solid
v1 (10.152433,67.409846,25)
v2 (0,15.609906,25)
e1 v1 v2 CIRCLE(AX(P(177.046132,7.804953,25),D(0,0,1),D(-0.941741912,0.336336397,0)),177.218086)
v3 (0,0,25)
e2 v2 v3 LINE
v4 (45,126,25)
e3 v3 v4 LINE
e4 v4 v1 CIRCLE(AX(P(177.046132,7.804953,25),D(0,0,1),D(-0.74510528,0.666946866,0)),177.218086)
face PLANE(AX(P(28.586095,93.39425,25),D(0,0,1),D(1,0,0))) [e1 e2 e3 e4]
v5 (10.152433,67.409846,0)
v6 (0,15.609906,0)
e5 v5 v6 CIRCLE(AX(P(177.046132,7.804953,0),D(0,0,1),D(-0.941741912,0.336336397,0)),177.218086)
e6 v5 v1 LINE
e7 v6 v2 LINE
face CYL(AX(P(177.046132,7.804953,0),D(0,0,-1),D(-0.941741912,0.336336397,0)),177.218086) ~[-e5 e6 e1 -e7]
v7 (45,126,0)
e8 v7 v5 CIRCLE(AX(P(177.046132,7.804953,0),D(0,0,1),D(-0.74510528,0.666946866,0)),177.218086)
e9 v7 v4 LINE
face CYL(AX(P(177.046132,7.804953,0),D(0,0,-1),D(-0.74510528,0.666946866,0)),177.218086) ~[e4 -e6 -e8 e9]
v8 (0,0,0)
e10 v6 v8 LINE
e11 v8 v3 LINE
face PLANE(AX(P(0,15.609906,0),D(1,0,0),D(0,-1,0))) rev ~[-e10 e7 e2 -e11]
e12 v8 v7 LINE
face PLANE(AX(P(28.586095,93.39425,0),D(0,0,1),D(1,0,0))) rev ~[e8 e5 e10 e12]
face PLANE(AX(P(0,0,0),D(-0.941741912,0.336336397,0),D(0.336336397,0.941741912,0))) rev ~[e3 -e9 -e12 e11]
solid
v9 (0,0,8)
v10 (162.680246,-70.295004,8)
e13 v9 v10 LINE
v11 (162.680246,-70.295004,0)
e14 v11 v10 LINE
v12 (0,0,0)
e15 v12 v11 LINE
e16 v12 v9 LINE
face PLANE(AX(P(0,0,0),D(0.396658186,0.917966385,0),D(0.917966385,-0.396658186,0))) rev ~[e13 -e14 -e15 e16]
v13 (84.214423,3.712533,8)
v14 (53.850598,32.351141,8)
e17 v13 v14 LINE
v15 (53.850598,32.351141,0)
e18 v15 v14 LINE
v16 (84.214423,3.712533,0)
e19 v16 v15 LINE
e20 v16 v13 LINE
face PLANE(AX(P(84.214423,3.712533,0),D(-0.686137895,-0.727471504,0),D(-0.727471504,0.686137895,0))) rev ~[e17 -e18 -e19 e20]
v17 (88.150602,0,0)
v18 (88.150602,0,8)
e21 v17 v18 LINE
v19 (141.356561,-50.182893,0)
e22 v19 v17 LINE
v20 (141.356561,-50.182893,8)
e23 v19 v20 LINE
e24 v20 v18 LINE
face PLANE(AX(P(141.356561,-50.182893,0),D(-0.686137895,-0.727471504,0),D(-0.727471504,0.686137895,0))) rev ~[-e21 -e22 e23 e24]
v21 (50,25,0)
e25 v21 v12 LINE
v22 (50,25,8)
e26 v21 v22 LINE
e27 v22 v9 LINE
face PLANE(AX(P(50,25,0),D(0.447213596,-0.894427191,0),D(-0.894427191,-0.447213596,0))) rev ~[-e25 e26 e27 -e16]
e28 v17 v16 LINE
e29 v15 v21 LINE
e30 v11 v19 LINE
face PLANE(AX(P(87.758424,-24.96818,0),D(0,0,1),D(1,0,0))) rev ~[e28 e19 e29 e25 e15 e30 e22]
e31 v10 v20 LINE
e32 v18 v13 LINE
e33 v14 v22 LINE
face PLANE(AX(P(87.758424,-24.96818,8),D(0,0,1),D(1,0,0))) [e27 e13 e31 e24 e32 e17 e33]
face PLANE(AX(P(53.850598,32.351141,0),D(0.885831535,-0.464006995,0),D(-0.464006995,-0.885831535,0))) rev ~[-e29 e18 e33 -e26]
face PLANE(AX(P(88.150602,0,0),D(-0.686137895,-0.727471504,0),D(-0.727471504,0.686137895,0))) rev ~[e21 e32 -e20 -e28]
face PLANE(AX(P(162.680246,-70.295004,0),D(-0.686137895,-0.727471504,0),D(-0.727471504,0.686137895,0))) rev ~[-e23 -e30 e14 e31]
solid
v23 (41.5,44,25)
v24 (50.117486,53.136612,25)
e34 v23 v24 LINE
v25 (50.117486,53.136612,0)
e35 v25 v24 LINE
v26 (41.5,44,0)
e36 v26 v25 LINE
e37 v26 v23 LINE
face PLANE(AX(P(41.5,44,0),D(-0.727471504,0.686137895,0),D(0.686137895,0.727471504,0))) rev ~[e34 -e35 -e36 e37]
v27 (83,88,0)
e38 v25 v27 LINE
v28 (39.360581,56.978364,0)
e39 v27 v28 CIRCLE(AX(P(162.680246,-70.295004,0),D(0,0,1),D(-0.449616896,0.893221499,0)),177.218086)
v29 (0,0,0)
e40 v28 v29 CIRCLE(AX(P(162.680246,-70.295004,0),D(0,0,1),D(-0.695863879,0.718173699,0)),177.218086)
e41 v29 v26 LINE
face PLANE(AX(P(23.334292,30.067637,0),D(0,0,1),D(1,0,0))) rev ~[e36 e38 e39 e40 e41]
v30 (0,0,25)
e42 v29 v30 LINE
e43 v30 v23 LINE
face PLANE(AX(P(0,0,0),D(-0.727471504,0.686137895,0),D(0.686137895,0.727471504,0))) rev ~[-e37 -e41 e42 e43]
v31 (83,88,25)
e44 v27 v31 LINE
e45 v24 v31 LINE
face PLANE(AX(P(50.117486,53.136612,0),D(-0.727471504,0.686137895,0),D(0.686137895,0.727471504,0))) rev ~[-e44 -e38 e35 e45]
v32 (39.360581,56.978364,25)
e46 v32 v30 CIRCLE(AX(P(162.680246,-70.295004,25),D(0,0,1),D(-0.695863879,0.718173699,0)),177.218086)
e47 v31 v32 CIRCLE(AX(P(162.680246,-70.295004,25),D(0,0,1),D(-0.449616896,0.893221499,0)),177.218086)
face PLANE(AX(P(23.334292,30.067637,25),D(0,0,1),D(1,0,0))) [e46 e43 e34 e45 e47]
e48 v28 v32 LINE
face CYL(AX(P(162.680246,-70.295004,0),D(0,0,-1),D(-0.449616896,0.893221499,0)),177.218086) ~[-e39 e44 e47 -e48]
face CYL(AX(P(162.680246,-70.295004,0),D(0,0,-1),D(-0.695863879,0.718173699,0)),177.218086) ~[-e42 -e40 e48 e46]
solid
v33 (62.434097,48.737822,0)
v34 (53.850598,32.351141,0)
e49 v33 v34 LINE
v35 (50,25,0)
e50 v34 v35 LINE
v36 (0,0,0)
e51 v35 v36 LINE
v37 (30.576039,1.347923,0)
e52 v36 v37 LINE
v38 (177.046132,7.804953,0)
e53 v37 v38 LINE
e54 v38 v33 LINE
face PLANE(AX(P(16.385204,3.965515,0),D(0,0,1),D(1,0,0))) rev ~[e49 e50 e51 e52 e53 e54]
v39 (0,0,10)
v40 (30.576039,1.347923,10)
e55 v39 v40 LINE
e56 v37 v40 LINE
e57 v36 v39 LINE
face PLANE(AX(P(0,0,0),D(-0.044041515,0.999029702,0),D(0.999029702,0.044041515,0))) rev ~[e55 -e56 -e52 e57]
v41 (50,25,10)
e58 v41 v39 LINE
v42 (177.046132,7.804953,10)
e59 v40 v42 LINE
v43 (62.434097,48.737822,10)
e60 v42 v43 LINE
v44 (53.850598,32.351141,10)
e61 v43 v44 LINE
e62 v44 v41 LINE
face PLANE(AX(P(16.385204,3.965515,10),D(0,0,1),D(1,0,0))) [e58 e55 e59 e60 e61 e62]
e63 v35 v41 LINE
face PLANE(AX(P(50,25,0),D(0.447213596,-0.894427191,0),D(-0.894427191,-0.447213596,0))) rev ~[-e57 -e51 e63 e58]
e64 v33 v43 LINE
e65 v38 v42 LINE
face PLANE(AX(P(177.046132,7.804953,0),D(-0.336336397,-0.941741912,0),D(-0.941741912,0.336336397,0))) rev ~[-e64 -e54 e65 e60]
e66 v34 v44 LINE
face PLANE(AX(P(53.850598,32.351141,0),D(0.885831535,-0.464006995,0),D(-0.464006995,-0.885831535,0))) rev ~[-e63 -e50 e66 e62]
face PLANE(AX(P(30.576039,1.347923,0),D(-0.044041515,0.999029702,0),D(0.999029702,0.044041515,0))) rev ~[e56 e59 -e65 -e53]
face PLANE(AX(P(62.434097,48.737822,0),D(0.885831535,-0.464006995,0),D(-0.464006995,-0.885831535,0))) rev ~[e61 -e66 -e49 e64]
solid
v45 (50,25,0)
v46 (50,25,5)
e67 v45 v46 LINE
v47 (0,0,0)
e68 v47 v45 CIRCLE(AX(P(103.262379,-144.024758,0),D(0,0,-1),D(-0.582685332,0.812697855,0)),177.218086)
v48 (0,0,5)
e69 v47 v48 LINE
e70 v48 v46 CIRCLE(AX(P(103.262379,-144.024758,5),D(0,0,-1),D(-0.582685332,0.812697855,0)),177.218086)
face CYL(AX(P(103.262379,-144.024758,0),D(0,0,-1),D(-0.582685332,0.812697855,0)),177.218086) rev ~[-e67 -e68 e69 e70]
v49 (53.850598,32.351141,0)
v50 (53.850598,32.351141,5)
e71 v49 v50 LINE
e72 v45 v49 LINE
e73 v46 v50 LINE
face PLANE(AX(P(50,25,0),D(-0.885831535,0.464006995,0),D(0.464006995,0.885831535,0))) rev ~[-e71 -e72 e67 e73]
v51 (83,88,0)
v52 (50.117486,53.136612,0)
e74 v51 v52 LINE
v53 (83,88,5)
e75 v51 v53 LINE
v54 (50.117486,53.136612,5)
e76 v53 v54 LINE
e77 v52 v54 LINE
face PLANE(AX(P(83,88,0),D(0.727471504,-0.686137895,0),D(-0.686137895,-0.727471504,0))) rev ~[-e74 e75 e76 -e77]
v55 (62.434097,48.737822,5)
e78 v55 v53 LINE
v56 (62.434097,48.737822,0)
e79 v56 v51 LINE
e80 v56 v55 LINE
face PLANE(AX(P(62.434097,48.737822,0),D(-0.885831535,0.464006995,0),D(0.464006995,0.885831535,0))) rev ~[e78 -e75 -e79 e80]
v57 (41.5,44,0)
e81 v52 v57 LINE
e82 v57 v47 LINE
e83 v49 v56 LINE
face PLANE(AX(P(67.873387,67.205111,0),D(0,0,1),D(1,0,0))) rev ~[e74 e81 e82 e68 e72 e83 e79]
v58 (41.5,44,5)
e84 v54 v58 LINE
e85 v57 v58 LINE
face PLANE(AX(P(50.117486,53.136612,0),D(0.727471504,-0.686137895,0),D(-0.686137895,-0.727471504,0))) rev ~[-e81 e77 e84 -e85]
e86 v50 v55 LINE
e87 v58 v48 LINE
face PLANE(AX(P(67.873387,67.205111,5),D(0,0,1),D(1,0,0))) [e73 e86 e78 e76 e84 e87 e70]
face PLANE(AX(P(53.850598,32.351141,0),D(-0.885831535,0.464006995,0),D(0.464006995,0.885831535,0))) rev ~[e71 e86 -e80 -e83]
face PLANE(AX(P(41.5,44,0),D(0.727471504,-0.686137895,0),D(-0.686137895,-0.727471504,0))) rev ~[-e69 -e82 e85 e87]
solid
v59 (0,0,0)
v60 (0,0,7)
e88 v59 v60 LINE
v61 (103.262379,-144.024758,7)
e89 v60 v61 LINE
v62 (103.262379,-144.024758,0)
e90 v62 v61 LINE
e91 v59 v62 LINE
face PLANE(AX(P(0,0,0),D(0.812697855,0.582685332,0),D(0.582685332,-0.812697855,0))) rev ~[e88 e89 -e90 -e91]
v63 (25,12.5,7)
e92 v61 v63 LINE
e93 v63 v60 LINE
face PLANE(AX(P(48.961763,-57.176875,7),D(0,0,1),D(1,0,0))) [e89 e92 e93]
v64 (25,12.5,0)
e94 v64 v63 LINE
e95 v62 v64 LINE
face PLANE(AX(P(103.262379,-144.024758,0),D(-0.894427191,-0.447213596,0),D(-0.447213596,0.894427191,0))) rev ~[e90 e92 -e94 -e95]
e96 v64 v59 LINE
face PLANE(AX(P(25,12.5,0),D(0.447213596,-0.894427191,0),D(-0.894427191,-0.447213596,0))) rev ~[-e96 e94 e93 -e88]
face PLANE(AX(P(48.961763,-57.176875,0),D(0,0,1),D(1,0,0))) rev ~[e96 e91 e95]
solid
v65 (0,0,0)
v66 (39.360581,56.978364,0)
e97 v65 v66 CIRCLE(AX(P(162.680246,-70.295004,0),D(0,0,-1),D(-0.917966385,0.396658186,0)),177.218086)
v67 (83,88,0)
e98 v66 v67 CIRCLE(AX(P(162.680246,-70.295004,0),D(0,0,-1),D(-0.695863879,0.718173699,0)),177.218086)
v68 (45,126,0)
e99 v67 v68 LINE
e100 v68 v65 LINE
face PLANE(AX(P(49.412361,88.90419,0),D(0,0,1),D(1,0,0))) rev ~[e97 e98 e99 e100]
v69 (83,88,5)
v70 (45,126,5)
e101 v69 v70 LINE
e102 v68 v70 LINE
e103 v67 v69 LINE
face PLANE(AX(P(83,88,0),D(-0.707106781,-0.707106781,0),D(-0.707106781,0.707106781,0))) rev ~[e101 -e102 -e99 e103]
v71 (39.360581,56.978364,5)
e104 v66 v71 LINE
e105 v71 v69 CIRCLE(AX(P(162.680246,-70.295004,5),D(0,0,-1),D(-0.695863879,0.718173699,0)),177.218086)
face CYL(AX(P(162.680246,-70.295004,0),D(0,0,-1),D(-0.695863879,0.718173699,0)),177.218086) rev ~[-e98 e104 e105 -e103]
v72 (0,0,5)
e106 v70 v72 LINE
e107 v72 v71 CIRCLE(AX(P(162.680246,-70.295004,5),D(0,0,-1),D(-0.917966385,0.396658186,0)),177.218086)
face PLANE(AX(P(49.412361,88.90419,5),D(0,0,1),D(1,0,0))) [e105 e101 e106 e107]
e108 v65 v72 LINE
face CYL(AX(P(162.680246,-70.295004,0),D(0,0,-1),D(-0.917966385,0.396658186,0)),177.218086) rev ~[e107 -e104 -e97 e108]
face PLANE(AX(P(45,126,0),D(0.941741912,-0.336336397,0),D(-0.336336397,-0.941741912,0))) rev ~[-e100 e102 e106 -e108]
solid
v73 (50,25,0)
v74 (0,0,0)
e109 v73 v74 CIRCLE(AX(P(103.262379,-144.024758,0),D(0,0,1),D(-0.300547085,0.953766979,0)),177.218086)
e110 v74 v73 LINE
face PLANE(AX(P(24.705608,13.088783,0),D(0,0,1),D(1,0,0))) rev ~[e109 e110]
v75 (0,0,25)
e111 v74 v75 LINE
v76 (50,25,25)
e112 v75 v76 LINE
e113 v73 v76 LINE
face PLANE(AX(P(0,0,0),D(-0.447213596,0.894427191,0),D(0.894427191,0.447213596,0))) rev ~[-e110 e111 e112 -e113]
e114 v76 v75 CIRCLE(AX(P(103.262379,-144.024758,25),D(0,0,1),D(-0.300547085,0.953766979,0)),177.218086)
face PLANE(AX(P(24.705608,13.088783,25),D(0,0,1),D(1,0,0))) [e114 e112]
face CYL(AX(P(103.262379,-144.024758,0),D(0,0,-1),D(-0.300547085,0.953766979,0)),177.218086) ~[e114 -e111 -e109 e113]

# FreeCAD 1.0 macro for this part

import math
import FreeCAD as App
import Part
import Sketcher
from FreeCAD import Vector
Q = App.Units.Quantity


def add_polygon(sketch, points):
    """Adds a closed chain of lines whose ends are joined by coincident constraints."""
    first, n = sketch.GeometryCount, len(points)
    for a, b in zip(points, points[1:] + points[:1]):
        sketch.addGeometry(Part.LineSegment(App.Vector(*a, 0), App.Vector(*b, 0)), False)
    for i in range(n):
        sketch.addConstraint(Sketcher.Constraint("Coincident", first + i, 2, first + (i + 1) % n, 1))

doc = App.newDocument("Part")
body = doc.addObject("PartDesign::Body", "Body")

sketch1 = body.newObject("Sketcher::SketchObject", "Sketch")
sketch1.AttachmentSupport = (doc.getObject("XY_Plane"), [""])
sketch1.MapMode = "FlatFace"
sketch1.addGeometry([
    Part.ArcOfCircle(Part.Circle(Vector(177, 8, 0), Vector(0, 0, 1), 177), math.radians(138), math.radians(160)),
    Part.ArcOfCircle(Part.Circle(Vector(177, 8, 0), Vector(0, 0, 1), 177), math.radians(160.35), math.radians(177.48)),
    Part.LineSegment(Vector(0, 16, 0), Vector(0, 0, 0)),
    Part.LineSegment(Vector(0, 0, 0), Vector(45, 126, 0)),
], False)
sketch1.addConstraint([
    Sketcher.Constraint("Tangent", 0, 2, 1, 1),
    Sketcher.Constraint("Coincident", 1, 2, 2, 1),
    Sketcher.Constraint("Coincident", 2, 2, 3, 1),
    Sketcher.Constraint("Coincident", 3, 2, 0, 1),
    Sketcher.Constraint("Vertical", 2),
    Sketcher.Constraint("Coincident", 2, 2, -1, 1),
    Sketcher.Constraint("Equal", 0, 1),
    Sketcher.Constraint("DistanceX", -1, 1, 3, 2, Q("45 mm")),
    Sketcher.Constraint("DistanceY", -1, 1, 3, 2, Q("126 mm")),
    Sketcher.Constraint("Radius", 0, Q("177.218086 mm")),
    Sketcher.Constraint("DistanceX", 0, 2, 0, 3, Q("166.893699 mm")),
    Sketcher.Constraint("DistanceY", 2, 2, 2, 1, Q("15.609906 mm")),
])
pad1 = body.newObject("PartDesign::Pad", "Pad")
pad1.Profile = sketch1
pad1.Length = 25
body2 = doc.addObject("PartDesign::Body", "Body001")

sketch2 = body2.newObject("Sketcher::SketchObject", "Sketch001")
sketch2.AttachmentSupport = (doc.getObject("XY_Plane001"), [""])
sketch2.MapMode = "FlatFace"
sketch2.addGeometry([
    Part.ArcOfCircle(Part.Circle(Vector(163, -70, 0), Vector(0, 0, 1), 177), math.radians(134), math.radians(157)),
    Part.LineSegment(Vector(0, 0, 0), Vector(42, 44, 0)),
    Part.LineSegment(Vector(42, 44, 0), Vector(50, 53, 0)),
    Part.LineSegment(Vector(50, 53, 0), Vector(83, 88, 0)),
    Part.ArcOfCircle(Part.Circle(Vector(163, -70, 0), Vector(0, 0, 1), 177), math.radians(116.72), math.radians(134.1)),
], False)
sketch2.addConstraint([
    Sketcher.Constraint("Coincident", 0, 2, 1, 1),
    Sketcher.Constraint("Coincident", 1, 2, 2, 1),
    Sketcher.Constraint("Coincident", 2, 2, 3, 1),
    Sketcher.Constraint("Coincident", 3, 2, 4, 1),
    Sketcher.Constraint("Tangent", 4, 2, 0, 1),
    Sketcher.Constraint("Coincident", 0, 2, -1, 1),
    Sketcher.Constraint("Equal", 0, 4),
    Sketcher.Constraint("Parallel", 1, 2),
    Sketcher.Constraint("Parallel", 2, 3),
    Sketcher.Constraint("DistanceY", -1, 1, 1, 2, Q("44 mm")),
    Sketcher.Constraint("DistanceX", -1, 1, 3, 2, Q("83 mm")),
    Sketcher.Constraint("DistanceY", -1, 1, 3, 2, Q("88 mm")),
    Sketcher.Constraint("Radius", 0, Q("177.218086 mm")),
    Sketcher.Constraint("Distance", 2, Q("12.559409 mm")),
    Sketcher.Constraint("DistanceX", -1, 1, 4, 2, Q("39.360581 mm")),
])
pad2 = body2.newObject("PartDesign::Pad", "Pad001")
pad2.Profile = sketch2
pad2.Length = 25
body3 = doc.addObject("PartDesign::Body", "Body002")

sketch3 = body3.newObject("Sketcher::SketchObject", "Sketch002")
sketch3.AttachmentSupport = (doc.getObject("XY_Plane002"), [""])
sketch3.MapMode = "FlatFace"
sketch3.addGeometry([
    Part.ArcOfCircle(Part.Circle(Vector(103, -144, 0), Vector(0, 0, 1), 177), math.radians(107.49), math.radians(125.64)),
    Part.LineSegment(Vector(0, 0, 0), Vector(50, 25, 0)),
], False)
sketch3.addConstraint([
    Sketcher.Constraint("Coincident", 0, 1, 1, 2),
    Sketcher.Constraint("Coincident", 1, 1, 0, 2),
    Sketcher.Constraint("Coincident", 1, 1, -1, 1),
    Sketcher.Constraint("DistanceX", -1, 1, 0, 1, Q("50 mm")),
    Sketcher.Constraint("DistanceY", -1, 1, 0, 1, Q("25 mm")),
    Sketcher.Constraint("Radius", 0, Q("177.218086 mm")),
])
pad3 = body3.newObject("PartDesign::Pad", "Pad002")
pad3.Profile = sketch3
pad3.Length = 25
body4 = doc.addObject("PartDesign::Body", "Body003")

sketch4 = body4.newObject("Sketcher::SketchObject", "Sketch003")
sketch4.AttachmentSupport = (doc.getObject("XY_Plane003"), [""])
sketch4.MapMode = "FlatFace"
sketch4.addGeometry([
    Part.ArcOfCircle(Part.Circle(Vector(163, -70, 0), Vector(0, 0, 1), 177), math.radians(116.72), math.radians(134.1)),
    Part.LineSegment(Vector(83, 88, 0), Vector(45, 126, 0)),
    Part.LineSegment(Vector(45, 126, 0), Vector(0, 0, 0)),
    Part.ArcOfCircle(Part.Circle(Vector(163, -70, 0), Vector(0, 0, 1), 177), math.radians(134), math.radians(157)),
], False)
sketch4.addConstraint([
    Sketcher.Constraint("Coincident", 0, 1, 1, 1),
    Sketcher.Constraint("Coincident", 1, 2, 2, 1),
    Sketcher.Constraint("Coincident", 2, 2, 3, 2),
    Sketcher.Constraint("Tangent", 3, 1, 0, 2),
    Sketcher.Constraint("Coincident", 2, 2, -1, 1),
    Sketcher.Constraint("Equal", 0, 3),
    Sketcher.Constraint("Angle", 1, Q("135 deg")),
    Sketcher.Constraint("DistanceX", -1, 1, 0, 1, Q("83 mm")),
    Sketcher.Constraint("DistanceY", -1, 1, 0, 1, Q("88 mm")),
    Sketcher.Constraint("DistanceX", -1, 1, 1, 2, Q("45 mm")),
    Sketcher.Constraint("Radius", 0, Q("177.218086 mm")),
    Sketcher.Constraint("DistanceX", -1, 1, 3, 1, Q("39.360581 mm")),
])
pad4 = body4.newObject("PartDesign::Pad", "Pad003")
pad4.Profile = sketch4
pad4.Length = 5
body5 = doc.addObject("PartDesign::Body", "Body004")

sketch5 = body5.newObject("Sketcher::SketchObject", "Sketch004")
sketch5.AttachmentSupport = (doc.getObject("XY_Plane004"), [""])
sketch5.MapMode = "FlatFace"
sketch5.addGeometry([
    Part.LineSegment(Vector(62, 49, 0), Vector(83, 88, 0)),
    Part.LineSegment(Vector(83, 88, 0), Vector(50, 53, 0)),
    Part.LineSegment(Vector(50, 53, 0), Vector(42, 44, 0)),
    Part.LineSegment(Vector(42, 44, 0), Vector(0, 0, 0)),
    Part.ArcOfCircle(Part.Circle(Vector(103, -144, 0), Vector(0, 0, 1), 177), math.radians(107.49), math.radians(125.64)),
    Part.LineSegment(Vector(50, 25, 0), Vector(54, 32, 0)),
    Part.LineSegment(Vector(54, 32, 0), Vector(62, 49, 0)),
], False)
sketch5.addConstraint([
    Sketcher.Constraint("Coincident", 0, 2, 1, 1),
    Sketcher.Constraint("Coincident", 1, 2, 2, 1),
    Sketcher.Constraint("Coincident", 2, 2, 3, 1),
    Sketcher.Constraint("Coincident", 3, 2, 4, 2),
    Sketcher.Constraint("Coincident", 4, 1, 5, 1),
    Sketcher.Constraint("Coincident", 5, 2, 6, 1),
    Sketcher.Constraint("Coincident", 6, 2, 0, 1),
    Sketcher.Constraint("Coincident", 3, 2, -1, 1),
    Sketcher.Constraint("Parallel", 1, 2),
    Sketcher.Constraint("Parallel", 2, 3),
    Sketcher.Constraint("Parallel", 0, 5),
    Sketcher.Constraint("Parallel", 5, 6),
    Sketcher.Constraint("DistanceX", -1, 1, 0, 2, Q("83 mm")),
    Sketcher.Constraint("DistanceY", -1, 1, 0, 2, Q("88 mm")),
    Sketcher.Constraint("DistanceY", -1, 1, 2, 2, Q("44 mm")),
    Sketcher.Constraint("DistanceX", -1, 1, 4, 1, Q("50 mm")),
    Sketcher.Constraint("DistanceY", -1, 1, 4, 1, Q("25 mm")),
    Sketcher.Constraint("Radius", 4, Q("177.218086 mm")),
    Sketcher.Constraint("DistanceX", 5, 2, 6, 2, Q("8.5835 mm")),
    Sketcher.Constraint("Distance", 1, Q("47.92406 mm")),
    Sketcher.Constraint("DistanceY", -1, 1, 5, 2, Q("32.351141 mm")),
])
pad5 = body5.newObject("PartDesign::Pad", "Pad004")
pad5.Profile = sketch5
pad5.Length = 5
body6 = doc.addObject("PartDesign::Body", "Body005")

sketch6 = body6.newObject("Sketcher::SketchObject", "Sketch005")
sketch6.AttachmentSupport = (doc.getObject("XY_Plane005"), [""])
sketch6.MapMode = "FlatFace"
add_polygon(sketch6, [(25, 12), (0, 0), (103, -144)])
sketch6.addConstraint([
    Sketcher.Constraint("Coincident", 0, 2, -1, 1),
    Sketcher.Constraint("Perpendicular", 0, 2),
    Sketcher.Constraint("Distance", 2, Q("175 mm")),
    Sketcher.Constraint("DistanceX", -1, 1, 2, 2, Q("25 mm")),
    Sketcher.Constraint("DistanceY", -1, 1, 2, 2, Q("12.5 mm")),
])
pad6 = body6.newObject("PartDesign::Pad", "Pad005")
pad6.Profile = sketch6
pad6.Length = 7
body7 = doc.addObject("PartDesign::Body", "Body006")

sketch7 = body7.newObject("Sketcher::SketchObject", "Sketch006")
sketch7.AttachmentSupport = (doc.getObject("XY_Plane006"), [""])
sketch7.MapMode = "FlatFace"
add_polygon(sketch7, [(50, 25), (0, 0), (163, -70), (141, -50), (88, 0), (84, 4), (54, 32)])
sketch7.addConstraint([
    Sketcher.Constraint("Coincident", 0, 2, -1, 1),
    Sketcher.Constraint("PointOnObject", 3, 2, -1),
    Sketcher.Constraint("Parallel", 2, 3),
    Sketcher.Constraint("Parallel", 3, 4),
    Sketcher.Constraint("Parallel", 4, 5),
    Sketcher.Constraint("DistanceX", -1, 1, 6, 2, Q("50 mm")),
    Sketcher.Constraint("DistanceY", -1, 1, 6, 2, Q("25 mm")),
    Sketcher.Constraint("Distance", 4, Q("5.410768 mm")),
    Sketcher.Constraint("Distance", 5, Q("41.738852 mm")),
    Sketcher.Constraint("DistanceX", -1, 1, 2, 2, Q("141.356561 mm")),
    Sketcher.Constraint("DistanceY", -1, 1, 5, 2, Q("32.351141 mm")),
    Sketcher.Constraint("DistanceY", 1, 2, 2, 2, Q("20.112112 mm")),
    Sketcher.Constraint("DistanceX", 3, 2, 2, 2, Q("53.205958 mm")),
])
pad7 = body7.newObject("PartDesign::Pad", "Pad006")
pad7.Profile = sketch7
pad7.Length = 8
body8 = doc.addObject("PartDesign::Body", "Body007")

sketch8 = body8.newObject("Sketcher::SketchObject", "Sketch007")
sketch8.AttachmentSupport = (doc.getObject("XY_Plane007"), [""])
sketch8.MapMode = "FlatFace"
add_polygon(sketch8, [(0, 0), (31, 1), (177, 8), (62, 49), (54, 32), (50, 25)])
sketch8.addConstraint([
    Sketcher.Constraint("Coincident", 5, 2, -1, 1),
    Sketcher.Constraint("Parallel", 0, 1),
    Sketcher.Constraint("Parallel", 3, 4),
    Sketcher.Constraint("DistanceX", -1, 1, 4, 2, Q("50 mm")),
    Sketcher.Constraint("DistanceY", -1, 1, 4, 2, Q("25 mm")),
    Sketcher.Constraint("DistanceY", 0, 2, 2, 2, Q("47.389899 mm")),
    Sketcher.Constraint("DistanceX", 3, 2, 2, 2, Q("8.5835 mm")),
    Sketcher.Constraint("Distance", 1, Q("146.612351 mm")),
    Sketcher.Constraint("Distance", 2, Q("121.70217 mm")),
    Sketcher.Constraint("DistanceX", -1, 1, 0, 2, Q("30.576039 mm")),
    Sketcher.Constraint("DistanceX", -1, 1, 1, 2, Q("177.046132 mm")),
])
pad8 = body8.newObject("PartDesign::Pad", "Pad007")
pad8.Profile = sketch8
pad8.Length = 10

doc.recompute()
